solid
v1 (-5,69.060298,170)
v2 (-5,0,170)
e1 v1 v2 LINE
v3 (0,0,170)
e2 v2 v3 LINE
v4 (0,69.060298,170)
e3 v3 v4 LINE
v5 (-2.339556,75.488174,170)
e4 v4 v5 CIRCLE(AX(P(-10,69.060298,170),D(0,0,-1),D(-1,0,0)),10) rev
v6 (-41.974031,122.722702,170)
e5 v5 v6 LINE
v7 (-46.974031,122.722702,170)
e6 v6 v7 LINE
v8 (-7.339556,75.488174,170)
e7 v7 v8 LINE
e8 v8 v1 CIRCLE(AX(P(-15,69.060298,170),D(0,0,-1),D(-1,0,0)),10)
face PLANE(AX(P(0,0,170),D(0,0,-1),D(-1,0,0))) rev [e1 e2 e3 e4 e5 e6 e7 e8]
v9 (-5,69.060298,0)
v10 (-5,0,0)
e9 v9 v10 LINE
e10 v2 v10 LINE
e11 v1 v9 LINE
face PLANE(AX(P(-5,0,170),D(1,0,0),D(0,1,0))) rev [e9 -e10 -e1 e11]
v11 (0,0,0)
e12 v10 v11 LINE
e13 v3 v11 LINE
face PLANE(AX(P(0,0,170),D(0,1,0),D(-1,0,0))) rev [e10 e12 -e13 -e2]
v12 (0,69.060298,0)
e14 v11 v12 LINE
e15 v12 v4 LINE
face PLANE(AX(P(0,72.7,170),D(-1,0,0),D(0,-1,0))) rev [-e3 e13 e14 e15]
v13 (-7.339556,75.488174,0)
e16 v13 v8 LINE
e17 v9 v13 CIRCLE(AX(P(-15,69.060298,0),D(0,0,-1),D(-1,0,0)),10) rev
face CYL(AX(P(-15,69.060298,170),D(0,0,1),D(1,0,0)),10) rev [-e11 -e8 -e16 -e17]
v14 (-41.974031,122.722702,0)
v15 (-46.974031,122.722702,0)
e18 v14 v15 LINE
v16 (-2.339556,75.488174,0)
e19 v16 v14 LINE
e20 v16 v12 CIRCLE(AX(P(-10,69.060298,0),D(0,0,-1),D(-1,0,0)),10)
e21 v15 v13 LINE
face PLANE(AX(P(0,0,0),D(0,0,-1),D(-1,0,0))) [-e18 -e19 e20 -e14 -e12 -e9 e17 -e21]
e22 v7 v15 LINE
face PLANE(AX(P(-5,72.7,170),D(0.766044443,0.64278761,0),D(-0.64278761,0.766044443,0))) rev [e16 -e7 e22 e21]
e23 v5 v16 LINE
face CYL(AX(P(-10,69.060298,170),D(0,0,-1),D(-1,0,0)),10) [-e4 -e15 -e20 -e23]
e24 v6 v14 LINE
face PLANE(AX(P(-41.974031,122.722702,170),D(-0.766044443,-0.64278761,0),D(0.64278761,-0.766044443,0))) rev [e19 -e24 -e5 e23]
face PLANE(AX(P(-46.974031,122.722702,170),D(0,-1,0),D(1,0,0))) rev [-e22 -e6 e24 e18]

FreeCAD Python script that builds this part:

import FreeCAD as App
import Part
import Sketcher
from FreeCAD import Vector
Q = App.Units.Quantity


def edges_at(feature, points):
    """Names of the edges that pass closest to the given points."""
    edges = feature.Shape.Edges
    near = lambda p: min(range(len(edges)), key=lambda i: edges[i].distToShape(Part.Vertex(*p))[0])
    return sorted({f"Edge{near(p) + 1}" for p in points})


def add_polygon(sketch, points):
    """Adds a closed chain of lines whose ends are joined by coincident constraints."""
    first, n = sketch.GeometryCount, len(points)
    for a, b in zip(points, points[1:] + points[:1]):
        sketch.addGeometry(Part.LineSegment(App.Vector(*a, 0), App.Vector(*b, 0)), False)
    for i in range(n):
        sketch.addConstraint(Sketcher.Constraint("Coincident", first + i, 2, first + (i + 1) % n, 1))

doc = App.newDocument("Part")
body = doc.addObject("PartDesign::Body", "Body")

sketch1 = body.newObject("Sketcher::SketchObject", "Sketch")
sketch1.AttachmentSupport = (doc.getObject("XY_Plane"), [""])
sketch1.MapMode = "FlatFace"
add_polygon(sketch1, [(-5, 0), (0, 0), (0, 73), (-42, 123), (-47, 123), (-5, 73)])
sketch1.addConstraint([
    Sketcher.Constraint("Horizontal", 0),
    Sketcher.Constraint("Vertical", 1),
    Sketcher.Constraint("Horizontal", 3),
    Sketcher.Constraint("Vertical", 5),
    Sketcher.Constraint("Coincident", 0, 2, -1, 1),
    Sketcher.Constraint("Parallel", 2, 4),
    Sketcher.Constraint("Horizontal", 1, 2, 4, 2),
    Sketcher.Constraint("DistanceX", 0, 1, 0, 2, Q("5 mm")),
    Sketcher.Constraint("Angle", 2, Q("130 deg")),
    Sketcher.Constraint("DistanceY", 1, 1, 1, 2, Q("72.7 mm")),
    Sketcher.Constraint("Distance", 2, Q("65.3 mm")),
])
pad1 = body.newObject("PartDesign::Pad", "Pad")
pad1.Profile = sketch1
pad1.Length = 170
doc.recompute()

fillet = body.newObject("PartDesign::Fillet", "Fillet")
fillet.Base = (pad1, edges_at(pad1, [(-5, 72.7, 85), (0, 72.7, 85)]))
fillet.Radius = 10

doc.recompute()
